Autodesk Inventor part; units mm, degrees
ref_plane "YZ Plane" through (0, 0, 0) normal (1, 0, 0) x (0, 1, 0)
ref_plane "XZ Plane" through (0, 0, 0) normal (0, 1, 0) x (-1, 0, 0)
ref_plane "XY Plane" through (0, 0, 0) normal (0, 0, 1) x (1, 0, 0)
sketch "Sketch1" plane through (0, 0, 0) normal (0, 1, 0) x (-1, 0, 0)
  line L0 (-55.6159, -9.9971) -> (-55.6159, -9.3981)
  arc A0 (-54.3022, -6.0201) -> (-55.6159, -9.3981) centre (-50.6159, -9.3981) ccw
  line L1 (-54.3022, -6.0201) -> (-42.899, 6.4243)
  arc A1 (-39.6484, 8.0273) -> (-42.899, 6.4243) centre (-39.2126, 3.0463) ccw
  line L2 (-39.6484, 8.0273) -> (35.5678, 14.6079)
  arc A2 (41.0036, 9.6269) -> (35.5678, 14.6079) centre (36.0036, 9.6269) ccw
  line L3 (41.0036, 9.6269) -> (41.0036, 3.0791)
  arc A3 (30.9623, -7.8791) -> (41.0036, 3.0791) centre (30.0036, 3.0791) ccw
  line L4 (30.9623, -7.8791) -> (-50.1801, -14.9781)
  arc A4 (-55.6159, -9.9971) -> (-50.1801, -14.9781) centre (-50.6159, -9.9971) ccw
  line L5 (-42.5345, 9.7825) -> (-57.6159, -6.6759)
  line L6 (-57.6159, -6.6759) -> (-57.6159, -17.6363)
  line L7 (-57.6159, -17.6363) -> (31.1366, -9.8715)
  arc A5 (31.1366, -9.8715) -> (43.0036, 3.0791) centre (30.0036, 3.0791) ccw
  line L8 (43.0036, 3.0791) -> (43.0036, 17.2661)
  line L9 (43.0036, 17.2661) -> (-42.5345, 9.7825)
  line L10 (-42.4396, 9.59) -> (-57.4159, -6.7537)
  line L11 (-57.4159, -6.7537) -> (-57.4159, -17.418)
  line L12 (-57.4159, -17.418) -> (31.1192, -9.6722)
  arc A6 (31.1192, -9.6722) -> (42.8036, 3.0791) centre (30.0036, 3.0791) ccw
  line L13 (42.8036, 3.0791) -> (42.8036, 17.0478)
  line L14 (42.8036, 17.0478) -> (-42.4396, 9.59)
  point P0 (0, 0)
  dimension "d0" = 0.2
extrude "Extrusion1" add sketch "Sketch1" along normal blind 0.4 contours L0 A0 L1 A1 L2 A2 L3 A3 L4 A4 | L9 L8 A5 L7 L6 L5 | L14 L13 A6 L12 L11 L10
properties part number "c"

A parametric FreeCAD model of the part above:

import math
import FreeCAD as App
import Part
import Sketcher

V = App.Vector
Q = App.Units.Quantity

doc = App.newDocument("Part")
body = doc.addObject("PartDesign::Body", "Body")

# Sketch on XZ plane
sketch1 = body.newObject("Sketcher::SketchObject", "Sketch")
sketch1.AttachmentSupport = (doc.getObject("XZ_Plane"), [""])
sketch1.MapMode = "FlatFace"
sketch1.addGeometry(Part.LineSegment(V(-43.0036, 17.2661, 0), V(42.5345, 9.7825, 0)), False)
sketch1.addGeometry(Part.LineSegment(V(42.5345, 9.7825, 0), V(57.6159, -6.6759, 0)), False)
sketch1.addGeometry(Part.LineSegment(V(57.6159, -6.6759, 0), V(57.6159, -17.6363, 0)), False)
sketch1.addGeometry(Part.LineSegment(V(57.6159, -17.6363, 0), V(-31.1366, -9.8715, 0)), False)
sketch1.addGeometry(Part.ArcOfCircle(Part.Circle(V(-30.0036, 3.0791, 0), V(0, 0, 1), 13.000067), math.radians(180), math.radians(265.000135)), False)
sketch1.addGeometry(Part.LineSegment(V(-43.0036, 3.0791, 0), V(-43.0036, 17.2661, 0)), False)
sketch1.addConstraint(Sketcher.Constraint("Coincident", 0, 2, 1, 1))
sketch1.addConstraint(Sketcher.Constraint("Coincident", 1, 2, 2, 1))
sketch1.addConstraint(Sketcher.Constraint("Coincident", 2, 2, 3, 1))
sketch1.addConstraint(Sketcher.Constraint("Tangent", 3, 2, 4, 2))
sketch1.addConstraint(Sketcher.Constraint("Tangent", 4, 1, 5, 1))
sketch1.addConstraint(Sketcher.Constraint("Coincident", 5, 2, 0, 1))
sketch1.addConstraint(Sketcher.Constraint("Vertical", 2))
sketch1.addConstraint(Sketcher.Constraint("Vertical", 5))
sketch1.addConstraint(Sketcher.Constraint("Parallel", 0, 3))
sketch1.addConstraint(Sketcher.Constraint("Radius", 4, Q("13 mm")))
sketch1.addConstraint(Sketcher.Constraint("Angle", 0, Q("-5 deg")))
sketch1.addConstraint(Sketcher.Constraint("Angle", 1, Q("-47.5 deg")))
sketch1.addConstraint(Sketcher.Constraint("DistanceY", 5, 1, 5, 2, Q("14.187 mm")))
sketch1.addConstraint(Sketcher.Constraint("DistanceY", 2, 2, 2, 1, Q("10.9604 mm")))
sketch1.addConstraint(Sketcher.Constraint("DistanceY", -1, 1, 4, 3, Q("3.079 mm")))
sketch1.addConstraint(Sketcher.Constraint("DistanceX", -1, 1, 1, 2, Q("57.616 mm")))
sketch1.addConstraint(Sketcher.Constraint("DistanceY", 1, 2, -1, 1, Q("6.676 mm")))
pad1 = body.newObject("PartDesign::Pad", "Pad")
pad1.Profile = sketch1
pad1.Length = 0.4
pad1.Reversed = True

doc.recompute()
